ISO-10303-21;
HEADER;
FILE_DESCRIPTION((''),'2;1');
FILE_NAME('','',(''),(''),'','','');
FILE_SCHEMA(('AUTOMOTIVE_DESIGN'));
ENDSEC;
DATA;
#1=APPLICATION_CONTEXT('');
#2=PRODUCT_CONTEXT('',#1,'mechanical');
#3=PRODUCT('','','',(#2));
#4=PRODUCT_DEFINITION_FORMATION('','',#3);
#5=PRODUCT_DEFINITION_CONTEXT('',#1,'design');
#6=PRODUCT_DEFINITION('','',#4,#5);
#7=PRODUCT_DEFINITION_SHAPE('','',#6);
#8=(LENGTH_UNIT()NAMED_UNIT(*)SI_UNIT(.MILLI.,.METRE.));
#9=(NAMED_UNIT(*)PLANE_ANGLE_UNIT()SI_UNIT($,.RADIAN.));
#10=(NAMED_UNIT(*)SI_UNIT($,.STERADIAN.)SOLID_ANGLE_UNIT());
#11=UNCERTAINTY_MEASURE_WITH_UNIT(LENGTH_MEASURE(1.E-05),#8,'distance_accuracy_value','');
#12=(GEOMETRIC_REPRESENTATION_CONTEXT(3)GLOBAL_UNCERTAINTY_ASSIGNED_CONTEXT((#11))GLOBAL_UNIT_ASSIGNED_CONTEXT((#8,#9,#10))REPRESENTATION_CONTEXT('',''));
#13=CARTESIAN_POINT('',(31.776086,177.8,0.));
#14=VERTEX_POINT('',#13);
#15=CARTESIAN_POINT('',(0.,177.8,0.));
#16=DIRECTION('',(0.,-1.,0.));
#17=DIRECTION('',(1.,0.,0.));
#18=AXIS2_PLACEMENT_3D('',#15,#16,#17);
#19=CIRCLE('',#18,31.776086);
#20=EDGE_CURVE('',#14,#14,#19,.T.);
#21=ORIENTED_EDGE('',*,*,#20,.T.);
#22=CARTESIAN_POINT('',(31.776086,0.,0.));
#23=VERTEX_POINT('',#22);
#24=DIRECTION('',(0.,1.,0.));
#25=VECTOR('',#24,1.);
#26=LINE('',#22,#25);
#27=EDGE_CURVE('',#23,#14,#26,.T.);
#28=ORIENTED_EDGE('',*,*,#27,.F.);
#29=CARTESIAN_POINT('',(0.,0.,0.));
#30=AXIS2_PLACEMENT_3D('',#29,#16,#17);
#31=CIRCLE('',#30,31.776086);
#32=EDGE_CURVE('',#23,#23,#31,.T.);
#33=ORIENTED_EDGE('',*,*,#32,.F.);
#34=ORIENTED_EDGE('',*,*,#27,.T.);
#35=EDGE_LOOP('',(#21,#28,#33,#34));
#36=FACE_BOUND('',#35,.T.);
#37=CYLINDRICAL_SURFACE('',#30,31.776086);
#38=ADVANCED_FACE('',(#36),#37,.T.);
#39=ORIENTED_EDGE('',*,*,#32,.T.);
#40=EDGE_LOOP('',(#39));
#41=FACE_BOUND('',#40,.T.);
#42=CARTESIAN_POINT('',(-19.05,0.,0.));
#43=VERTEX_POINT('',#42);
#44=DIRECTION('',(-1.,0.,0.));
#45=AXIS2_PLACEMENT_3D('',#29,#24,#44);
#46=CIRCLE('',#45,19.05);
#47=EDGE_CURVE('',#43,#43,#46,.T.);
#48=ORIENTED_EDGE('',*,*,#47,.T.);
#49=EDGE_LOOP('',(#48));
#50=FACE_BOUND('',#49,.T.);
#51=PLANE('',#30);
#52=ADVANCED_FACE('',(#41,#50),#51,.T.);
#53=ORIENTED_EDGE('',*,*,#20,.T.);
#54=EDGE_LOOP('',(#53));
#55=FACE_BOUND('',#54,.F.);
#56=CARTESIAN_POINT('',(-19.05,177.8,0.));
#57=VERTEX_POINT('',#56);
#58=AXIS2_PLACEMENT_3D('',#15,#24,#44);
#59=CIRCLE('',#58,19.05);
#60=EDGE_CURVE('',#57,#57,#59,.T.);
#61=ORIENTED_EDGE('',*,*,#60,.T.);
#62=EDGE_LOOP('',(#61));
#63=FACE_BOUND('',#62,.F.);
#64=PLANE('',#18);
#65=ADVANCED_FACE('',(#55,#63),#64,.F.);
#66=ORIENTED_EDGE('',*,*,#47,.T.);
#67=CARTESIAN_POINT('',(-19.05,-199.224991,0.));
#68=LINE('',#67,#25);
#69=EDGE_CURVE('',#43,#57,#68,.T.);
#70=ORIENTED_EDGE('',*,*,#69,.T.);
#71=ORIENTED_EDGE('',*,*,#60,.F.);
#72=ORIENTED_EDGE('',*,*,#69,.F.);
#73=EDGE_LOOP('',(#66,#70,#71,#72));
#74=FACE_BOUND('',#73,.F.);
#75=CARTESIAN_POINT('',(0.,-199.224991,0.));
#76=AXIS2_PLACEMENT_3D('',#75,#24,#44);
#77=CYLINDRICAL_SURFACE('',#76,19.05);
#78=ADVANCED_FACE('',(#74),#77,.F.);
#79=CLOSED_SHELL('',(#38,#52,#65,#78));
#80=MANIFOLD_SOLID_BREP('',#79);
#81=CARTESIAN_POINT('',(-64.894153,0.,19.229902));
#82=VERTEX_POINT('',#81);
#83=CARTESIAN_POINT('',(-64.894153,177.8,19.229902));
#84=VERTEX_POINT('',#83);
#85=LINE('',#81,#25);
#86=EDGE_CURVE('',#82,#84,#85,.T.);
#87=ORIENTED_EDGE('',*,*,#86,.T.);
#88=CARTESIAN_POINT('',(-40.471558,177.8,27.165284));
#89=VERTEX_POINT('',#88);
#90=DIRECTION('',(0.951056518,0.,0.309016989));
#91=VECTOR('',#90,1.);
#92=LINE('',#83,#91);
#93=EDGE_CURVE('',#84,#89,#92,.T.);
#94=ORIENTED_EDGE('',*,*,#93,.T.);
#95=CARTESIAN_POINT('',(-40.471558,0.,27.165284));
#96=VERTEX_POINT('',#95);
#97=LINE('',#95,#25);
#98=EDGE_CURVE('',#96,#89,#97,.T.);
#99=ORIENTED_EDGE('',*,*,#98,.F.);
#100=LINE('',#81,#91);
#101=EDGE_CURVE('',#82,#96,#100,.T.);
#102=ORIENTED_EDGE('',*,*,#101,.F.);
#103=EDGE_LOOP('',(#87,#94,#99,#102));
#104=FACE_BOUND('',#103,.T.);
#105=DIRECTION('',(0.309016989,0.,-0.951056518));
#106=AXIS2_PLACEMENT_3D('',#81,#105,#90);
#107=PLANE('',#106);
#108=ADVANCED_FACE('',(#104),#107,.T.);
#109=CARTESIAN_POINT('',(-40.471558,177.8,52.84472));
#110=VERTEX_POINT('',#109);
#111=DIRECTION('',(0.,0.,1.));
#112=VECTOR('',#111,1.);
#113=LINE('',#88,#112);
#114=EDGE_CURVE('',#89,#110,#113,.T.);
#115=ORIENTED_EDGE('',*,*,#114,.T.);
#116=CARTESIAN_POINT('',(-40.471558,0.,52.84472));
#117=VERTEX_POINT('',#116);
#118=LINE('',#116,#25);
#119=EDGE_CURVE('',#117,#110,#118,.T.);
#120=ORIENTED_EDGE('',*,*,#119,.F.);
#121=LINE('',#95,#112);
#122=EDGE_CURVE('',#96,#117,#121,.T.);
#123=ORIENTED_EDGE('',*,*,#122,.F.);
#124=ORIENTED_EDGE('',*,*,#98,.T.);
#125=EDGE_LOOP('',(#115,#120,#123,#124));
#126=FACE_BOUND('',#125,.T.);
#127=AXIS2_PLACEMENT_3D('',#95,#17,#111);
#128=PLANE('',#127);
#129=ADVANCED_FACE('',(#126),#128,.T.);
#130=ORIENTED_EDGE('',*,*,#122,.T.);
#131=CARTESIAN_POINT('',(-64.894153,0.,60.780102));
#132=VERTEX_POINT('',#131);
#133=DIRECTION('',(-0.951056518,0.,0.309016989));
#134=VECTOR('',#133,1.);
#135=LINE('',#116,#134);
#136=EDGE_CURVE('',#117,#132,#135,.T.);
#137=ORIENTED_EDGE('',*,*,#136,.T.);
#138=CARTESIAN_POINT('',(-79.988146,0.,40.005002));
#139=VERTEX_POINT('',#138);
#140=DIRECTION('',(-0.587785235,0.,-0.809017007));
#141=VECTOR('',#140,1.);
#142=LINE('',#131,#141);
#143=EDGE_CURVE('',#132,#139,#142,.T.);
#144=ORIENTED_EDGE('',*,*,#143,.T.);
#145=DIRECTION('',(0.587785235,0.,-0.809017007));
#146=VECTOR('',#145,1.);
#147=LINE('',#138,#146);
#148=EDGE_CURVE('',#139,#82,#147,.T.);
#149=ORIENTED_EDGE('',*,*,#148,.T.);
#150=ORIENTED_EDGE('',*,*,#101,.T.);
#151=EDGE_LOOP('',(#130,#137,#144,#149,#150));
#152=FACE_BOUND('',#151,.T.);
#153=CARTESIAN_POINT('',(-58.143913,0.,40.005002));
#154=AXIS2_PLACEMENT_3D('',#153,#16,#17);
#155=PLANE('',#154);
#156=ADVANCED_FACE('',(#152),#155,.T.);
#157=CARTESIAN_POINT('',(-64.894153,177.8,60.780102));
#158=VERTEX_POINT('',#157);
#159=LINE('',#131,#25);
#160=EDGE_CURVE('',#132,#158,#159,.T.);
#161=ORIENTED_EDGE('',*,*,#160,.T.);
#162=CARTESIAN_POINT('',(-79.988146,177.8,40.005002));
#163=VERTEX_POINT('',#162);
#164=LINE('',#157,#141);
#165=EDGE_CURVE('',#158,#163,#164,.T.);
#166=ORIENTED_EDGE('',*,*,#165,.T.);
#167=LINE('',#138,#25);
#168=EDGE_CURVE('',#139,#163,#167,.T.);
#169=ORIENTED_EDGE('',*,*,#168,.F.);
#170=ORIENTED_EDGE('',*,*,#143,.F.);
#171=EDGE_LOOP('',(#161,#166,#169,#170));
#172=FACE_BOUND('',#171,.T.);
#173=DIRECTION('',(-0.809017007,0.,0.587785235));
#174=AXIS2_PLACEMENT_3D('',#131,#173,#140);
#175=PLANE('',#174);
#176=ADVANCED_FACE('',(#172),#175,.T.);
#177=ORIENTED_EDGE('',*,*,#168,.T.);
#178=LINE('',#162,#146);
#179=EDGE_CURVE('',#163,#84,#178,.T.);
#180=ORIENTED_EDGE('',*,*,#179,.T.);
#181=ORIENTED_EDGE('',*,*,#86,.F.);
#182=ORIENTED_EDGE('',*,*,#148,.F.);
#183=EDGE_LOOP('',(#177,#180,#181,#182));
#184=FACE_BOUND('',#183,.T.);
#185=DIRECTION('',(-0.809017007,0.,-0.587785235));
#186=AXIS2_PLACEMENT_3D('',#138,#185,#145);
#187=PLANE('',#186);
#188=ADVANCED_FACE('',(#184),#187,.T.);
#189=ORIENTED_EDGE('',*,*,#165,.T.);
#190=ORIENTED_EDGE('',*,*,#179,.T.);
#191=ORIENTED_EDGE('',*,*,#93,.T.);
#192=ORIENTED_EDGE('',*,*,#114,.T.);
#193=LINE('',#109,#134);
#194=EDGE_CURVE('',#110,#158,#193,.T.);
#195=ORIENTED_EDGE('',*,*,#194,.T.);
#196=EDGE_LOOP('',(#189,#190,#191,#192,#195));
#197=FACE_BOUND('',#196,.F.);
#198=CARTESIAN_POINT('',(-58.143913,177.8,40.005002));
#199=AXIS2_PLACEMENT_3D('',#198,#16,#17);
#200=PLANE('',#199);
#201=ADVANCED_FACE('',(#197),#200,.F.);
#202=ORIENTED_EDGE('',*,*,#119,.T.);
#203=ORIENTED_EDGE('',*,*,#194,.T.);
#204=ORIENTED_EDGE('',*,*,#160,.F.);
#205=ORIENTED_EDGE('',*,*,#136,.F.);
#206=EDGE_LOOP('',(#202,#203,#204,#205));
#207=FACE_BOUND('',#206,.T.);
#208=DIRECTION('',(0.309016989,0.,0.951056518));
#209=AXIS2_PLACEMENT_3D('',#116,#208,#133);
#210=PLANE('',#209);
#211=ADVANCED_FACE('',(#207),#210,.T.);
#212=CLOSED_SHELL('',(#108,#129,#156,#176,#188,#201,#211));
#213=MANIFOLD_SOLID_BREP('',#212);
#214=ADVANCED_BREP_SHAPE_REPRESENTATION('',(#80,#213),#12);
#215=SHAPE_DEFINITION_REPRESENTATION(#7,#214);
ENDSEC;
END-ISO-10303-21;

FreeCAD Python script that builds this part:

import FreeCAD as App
import Part
import Sketcher

V = App.Vector
Q = App.Units.Quantity


def add_polygon(sketch, points):
    """Adds a closed chain of lines whose ends are joined by coincident constraints."""
    first, n = sketch.GeometryCount, len(points)
    for a, b in zip(points, points[1:] + points[:1]):
        sketch.addGeometry(Part.LineSegment(App.Vector(*a, 0), App.Vector(*b, 0)), False)
    for i in range(n):
        sketch.addConstraint(Sketcher.Constraint("Coincident", first + i, 2, first + (i + 1) % n, 1))

doc = App.newDocument("Part")
body = doc.addObject("PartDesign::Body", "Body")

# Sketch on XZ plane
sketch1 = body.newObject("Sketcher::SketchObject", "Sketch")
sketch1.AttachmentSupport = (doc.getObject("XZ_Plane"), [""])
sketch1.MapMode = "FlatFace"
sketch1.addGeometry(Part.Circle(V(0, 0, 0), V(0, 0, 1), 32), False)
sketch1.addConstraint(Sketcher.Constraint("Coincident", 0, 3, -1, 1))
sketch1.addConstraint(Sketcher.Constraint("Diameter", 0, 63.552172))
pad1 = body.newObject("PartDesign::Pad", "Pad")
pad1.Profile = sketch1
pad1.Length = Q("7 in")
pad1.Reversed = True

# Sketch on XZ plane
sketch2 = body.newObject("Sketcher::SketchObject", "Sketch001")
sketch2.AttachmentSupport = (doc.getObject("XZ_Plane"), [""])
sketch2.MapMode = "FlatFace"
sketch2.addGeometry(Part.Circle(V(0, 0, 0), V(0, 0, 1), 19), False)
sketch2.addConstraint(Sketcher.Constraint("Coincident", 0, 3, -1, 1))
sketch2.addConstraint(Sketcher.Constraint("Diameter", 0, Q("1.5 in")))
doc.recompute()
hole = body.newObject("PartDesign::Hole", "Hole")
hole.Profile = sketch2
hole.ThreadType = "None"
hole.Diameter = Q("1.5 in")
hole.DepthType = "ThroughAll"
body2 = doc.addObject("PartDesign::Body", "Body001")

# Sketch on XZ plane
sketch3 = body2.newObject("Sketcher::SketchObject", "Sketch002")
sketch3.AttachmentSupport = (doc.getObject("XZ_Plane001"), [""])
sketch3.MapMode = "FlatFace"
add_polygon(sketch3, [(-40, 27), (-40, 53), (-65, 61), (-80, 40), (-65, 19)])  # lines 0-4
sketch3.addConstraint(Sketcher.Constraint("Vertical", 0))
sketch3.addConstraint(Sketcher.Constraint("Vertical", 1, 2, 3, 2))
sketch3.addConstraint(Sketcher.Constraint("Equal", 1, 2))
sketch3.addConstraint(Sketcher.Constraint("Equal", 2, 3))
sketch3.addConstraint(Sketcher.Constraint("Equal", 3, 4))
sketch3.addConstraint(Sketcher.Constraint("Angle", 1, Q("162 deg")))
sketch3.addConstraint(Sketcher.Constraint("Angle", 2, Q("-125.999999 deg")))
sketch3.addConstraint(Sketcher.Constraint("DistanceY", -1, 1, 2, 2, Q("1.5750001 in")))
sketch3.addConstraint(Sketcher.Constraint("DistanceY", -1, 1, 3, 2, 19.229902))
sketch3.addConstraint(Sketcher.Constraint("DistanceX", 0, 2, -1, 1, 40.471558))
pad2 = body2.newObject("PartDesign::Pad", "Pad001")
pad2.Profile = sketch3
pad2.Length = Q("7 in")
pad2.Reversed = True

doc.recompute()
